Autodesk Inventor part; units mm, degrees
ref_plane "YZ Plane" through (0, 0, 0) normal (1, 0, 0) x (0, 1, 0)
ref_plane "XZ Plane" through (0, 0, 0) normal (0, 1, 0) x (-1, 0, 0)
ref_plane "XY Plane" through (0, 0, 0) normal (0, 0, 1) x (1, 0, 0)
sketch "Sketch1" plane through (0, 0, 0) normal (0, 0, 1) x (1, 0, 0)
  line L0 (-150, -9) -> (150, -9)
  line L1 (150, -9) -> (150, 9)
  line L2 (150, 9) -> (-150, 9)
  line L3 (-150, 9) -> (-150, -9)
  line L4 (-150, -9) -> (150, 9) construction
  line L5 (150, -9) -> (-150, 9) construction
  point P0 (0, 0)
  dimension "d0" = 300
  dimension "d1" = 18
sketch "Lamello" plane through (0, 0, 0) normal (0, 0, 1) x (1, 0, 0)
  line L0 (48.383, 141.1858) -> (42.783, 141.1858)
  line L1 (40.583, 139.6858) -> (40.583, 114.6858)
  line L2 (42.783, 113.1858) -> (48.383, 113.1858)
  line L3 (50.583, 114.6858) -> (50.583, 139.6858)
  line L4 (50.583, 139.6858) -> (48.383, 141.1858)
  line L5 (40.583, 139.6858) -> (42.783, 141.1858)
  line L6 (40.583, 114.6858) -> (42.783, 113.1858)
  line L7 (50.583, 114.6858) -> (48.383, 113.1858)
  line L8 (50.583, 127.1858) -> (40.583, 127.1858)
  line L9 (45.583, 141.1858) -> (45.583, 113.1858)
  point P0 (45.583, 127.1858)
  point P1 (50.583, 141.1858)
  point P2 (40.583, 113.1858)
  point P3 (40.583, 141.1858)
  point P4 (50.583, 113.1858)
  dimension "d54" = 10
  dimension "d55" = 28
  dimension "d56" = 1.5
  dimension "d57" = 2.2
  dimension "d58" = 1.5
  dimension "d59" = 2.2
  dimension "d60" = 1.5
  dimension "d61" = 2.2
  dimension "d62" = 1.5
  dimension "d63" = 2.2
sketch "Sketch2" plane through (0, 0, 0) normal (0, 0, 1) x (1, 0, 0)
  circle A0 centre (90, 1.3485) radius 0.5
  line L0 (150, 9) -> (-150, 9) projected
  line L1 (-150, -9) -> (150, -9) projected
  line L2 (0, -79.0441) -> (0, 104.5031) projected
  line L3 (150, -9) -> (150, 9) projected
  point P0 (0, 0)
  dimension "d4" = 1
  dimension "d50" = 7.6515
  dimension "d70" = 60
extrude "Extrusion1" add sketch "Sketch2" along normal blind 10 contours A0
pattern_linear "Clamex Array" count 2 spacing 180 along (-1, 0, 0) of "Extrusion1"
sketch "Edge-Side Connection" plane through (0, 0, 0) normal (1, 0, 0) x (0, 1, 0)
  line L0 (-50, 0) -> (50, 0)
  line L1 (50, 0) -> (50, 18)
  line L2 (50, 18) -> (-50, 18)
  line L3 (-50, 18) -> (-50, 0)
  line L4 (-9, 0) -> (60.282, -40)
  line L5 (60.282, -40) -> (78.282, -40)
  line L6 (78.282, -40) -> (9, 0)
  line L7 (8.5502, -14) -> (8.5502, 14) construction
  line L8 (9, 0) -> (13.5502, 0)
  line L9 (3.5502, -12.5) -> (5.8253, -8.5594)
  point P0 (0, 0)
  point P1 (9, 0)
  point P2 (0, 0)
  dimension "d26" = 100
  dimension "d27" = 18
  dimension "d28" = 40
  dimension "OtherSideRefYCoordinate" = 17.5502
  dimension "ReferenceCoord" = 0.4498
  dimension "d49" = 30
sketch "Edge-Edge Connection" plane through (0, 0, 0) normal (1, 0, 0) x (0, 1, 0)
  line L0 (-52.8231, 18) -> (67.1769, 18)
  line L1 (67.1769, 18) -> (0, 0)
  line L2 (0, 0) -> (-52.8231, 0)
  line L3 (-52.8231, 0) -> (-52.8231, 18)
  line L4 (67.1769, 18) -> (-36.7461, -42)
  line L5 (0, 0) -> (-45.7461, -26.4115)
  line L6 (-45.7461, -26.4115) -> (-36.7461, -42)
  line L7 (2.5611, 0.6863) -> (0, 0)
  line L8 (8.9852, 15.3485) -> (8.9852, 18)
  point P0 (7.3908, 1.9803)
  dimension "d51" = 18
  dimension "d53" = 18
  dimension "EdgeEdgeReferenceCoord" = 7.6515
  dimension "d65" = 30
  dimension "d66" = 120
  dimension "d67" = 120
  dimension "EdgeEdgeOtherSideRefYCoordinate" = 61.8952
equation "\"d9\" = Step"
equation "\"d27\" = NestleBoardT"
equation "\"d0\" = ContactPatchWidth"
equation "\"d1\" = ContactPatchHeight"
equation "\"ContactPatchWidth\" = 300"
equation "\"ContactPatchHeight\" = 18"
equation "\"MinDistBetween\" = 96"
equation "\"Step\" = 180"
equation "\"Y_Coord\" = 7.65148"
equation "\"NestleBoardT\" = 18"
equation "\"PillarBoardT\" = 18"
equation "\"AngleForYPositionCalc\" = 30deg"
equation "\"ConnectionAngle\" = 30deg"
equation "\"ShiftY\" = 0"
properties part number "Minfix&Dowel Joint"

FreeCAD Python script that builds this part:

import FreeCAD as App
import Part
import Sketcher

doc = App.newDocument("Part")
body = doc.addObject("PartDesign::Body", "Body")
body.AllowCompound = True

sketch1 = body.newObject("Sketcher::SketchObject", "Sketch")
sketch1.AttachmentSupport = (doc.getObject("XY_Plane"), [""])
sketch1.MapMode = "FlatFace"
sketch1.addGeometry(Part.Circle(App.Vector(90, 1.3, 0), App.Vector(0, 0, 1), 0.5), False)
sketch1.addConstraint(Sketcher.Constraint("Diameter", 0, 1.0))
sketch1.addConstraint(Sketcher.Constraint("DistanceX", -1, 1, 0, 3, 90.0))
sketch1.addConstraint(Sketcher.Constraint("DistanceY", -1, 1, 0, 3, 1.3485))
pad1 = body.newObject("PartDesign::Pad", "Pad")
pad1.Profile = sketch1
pad1.Length = 10
doc.recompute()

linearpattern = body.newObject("PartDesign::LinearPattern", "LinearPattern")
linearpattern.Originals = [pad1]
linearpattern.Direction = (doc.getObject("X_Axis"), [""])
linearpattern.Mode = "offset"
linearpattern.Offset = 180
linearpattern.Occurrences = 2
linearpattern.Reversed = True
body.Tip = linearpattern

doc.recompute()
